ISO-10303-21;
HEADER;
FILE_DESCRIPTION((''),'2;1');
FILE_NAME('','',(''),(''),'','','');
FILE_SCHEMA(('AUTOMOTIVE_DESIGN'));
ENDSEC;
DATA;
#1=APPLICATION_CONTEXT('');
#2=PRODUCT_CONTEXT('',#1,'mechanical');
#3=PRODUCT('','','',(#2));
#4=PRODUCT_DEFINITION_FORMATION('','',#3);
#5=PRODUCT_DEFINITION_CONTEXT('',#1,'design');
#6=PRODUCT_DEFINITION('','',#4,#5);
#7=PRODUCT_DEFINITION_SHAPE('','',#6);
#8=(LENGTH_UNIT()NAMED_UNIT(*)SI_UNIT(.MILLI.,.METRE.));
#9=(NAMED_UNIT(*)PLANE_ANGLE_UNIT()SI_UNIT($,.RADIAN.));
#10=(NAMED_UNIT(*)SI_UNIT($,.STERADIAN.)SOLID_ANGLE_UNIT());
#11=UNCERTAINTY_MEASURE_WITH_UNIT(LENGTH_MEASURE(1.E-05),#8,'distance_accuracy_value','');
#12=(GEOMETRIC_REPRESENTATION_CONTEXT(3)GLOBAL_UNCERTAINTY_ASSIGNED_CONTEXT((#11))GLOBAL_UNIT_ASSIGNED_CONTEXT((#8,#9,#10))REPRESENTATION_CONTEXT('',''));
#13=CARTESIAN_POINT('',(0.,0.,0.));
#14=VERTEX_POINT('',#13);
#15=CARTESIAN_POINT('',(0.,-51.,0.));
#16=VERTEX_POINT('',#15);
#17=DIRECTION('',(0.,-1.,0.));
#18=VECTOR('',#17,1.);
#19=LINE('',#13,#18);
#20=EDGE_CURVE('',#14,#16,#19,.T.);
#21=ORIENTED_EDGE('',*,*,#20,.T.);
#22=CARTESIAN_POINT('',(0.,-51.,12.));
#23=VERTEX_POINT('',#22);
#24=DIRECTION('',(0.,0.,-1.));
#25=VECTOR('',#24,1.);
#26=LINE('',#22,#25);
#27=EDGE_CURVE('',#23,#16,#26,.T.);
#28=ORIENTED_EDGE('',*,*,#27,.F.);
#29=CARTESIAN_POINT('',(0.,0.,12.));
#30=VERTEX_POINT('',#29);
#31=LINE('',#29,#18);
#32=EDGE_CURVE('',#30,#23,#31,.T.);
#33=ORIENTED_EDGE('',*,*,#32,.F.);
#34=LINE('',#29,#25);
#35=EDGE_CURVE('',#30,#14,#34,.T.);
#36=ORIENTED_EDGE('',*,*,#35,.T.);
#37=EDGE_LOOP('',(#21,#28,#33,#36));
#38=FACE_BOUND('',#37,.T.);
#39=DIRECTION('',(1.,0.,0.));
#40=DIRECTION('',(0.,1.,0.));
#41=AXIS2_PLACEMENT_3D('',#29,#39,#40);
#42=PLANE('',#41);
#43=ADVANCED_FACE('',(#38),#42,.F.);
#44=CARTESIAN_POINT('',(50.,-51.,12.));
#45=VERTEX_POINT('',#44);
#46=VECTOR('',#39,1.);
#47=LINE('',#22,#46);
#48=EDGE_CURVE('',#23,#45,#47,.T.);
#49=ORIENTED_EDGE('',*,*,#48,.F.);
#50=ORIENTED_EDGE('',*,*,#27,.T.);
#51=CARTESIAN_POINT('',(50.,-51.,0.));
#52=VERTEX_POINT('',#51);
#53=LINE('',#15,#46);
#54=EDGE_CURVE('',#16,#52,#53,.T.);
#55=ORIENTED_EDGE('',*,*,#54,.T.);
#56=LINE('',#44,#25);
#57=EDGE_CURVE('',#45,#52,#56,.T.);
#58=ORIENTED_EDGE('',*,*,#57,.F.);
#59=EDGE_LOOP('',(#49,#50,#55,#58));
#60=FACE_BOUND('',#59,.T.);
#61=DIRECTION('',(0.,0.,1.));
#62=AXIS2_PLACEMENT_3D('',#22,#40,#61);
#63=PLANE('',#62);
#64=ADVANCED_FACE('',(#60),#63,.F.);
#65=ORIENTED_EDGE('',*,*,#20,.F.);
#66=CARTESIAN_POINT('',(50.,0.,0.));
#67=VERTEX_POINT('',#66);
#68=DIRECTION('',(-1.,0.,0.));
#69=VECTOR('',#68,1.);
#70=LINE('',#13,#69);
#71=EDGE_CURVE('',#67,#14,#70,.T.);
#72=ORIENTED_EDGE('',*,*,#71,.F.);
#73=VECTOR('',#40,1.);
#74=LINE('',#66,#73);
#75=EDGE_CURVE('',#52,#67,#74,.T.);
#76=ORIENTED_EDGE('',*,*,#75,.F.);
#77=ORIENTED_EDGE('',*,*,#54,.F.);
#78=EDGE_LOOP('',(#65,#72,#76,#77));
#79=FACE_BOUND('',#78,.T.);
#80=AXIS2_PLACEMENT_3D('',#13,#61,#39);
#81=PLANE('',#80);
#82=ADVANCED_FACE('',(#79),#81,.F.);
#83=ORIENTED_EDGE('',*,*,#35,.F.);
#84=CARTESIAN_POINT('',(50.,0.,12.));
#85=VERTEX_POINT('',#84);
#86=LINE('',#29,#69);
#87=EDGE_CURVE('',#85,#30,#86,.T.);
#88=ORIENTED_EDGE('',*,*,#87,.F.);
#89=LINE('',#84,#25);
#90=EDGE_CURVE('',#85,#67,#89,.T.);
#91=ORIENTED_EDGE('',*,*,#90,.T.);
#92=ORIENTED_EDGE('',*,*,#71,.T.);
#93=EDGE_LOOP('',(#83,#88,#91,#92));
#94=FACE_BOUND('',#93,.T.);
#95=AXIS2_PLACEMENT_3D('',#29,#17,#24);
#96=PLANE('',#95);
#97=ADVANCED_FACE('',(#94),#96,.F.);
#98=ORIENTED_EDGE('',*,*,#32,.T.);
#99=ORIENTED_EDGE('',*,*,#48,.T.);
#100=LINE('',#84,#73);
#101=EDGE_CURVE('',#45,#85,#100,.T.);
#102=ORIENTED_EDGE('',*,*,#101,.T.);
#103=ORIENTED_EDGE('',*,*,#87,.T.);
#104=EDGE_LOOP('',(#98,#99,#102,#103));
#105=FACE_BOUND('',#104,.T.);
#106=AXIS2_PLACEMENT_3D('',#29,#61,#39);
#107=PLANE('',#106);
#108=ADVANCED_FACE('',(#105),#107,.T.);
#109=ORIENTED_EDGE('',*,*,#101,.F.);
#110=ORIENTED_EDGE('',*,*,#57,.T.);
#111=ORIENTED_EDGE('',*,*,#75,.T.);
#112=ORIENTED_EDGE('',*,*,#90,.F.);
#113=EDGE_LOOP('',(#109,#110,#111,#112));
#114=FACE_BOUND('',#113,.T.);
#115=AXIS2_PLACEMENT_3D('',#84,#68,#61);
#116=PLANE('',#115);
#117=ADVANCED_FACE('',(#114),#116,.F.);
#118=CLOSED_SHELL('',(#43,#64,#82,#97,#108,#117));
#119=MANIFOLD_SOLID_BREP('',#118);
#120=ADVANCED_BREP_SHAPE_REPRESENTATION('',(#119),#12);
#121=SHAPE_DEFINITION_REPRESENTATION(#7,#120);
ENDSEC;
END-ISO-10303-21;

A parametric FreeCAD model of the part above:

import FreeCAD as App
import Part
import Sketcher
Q = App.Units.Quantity

doc = App.newDocument("Part")
body = doc.addObject("PartDesign::Body", "Body")

sketch1 = doc.addObject("Sketcher::SketchObject", "Sketch")
body.addObject(sketch1)
sketch1.AttachmentSupport = (doc.XY_Plane, [""])
sketch1.MapMode = "FlatFace"
sketch1.addGeometry([
    Part.LineSegment(App.Vector(0, 0, 0), App.Vector(0, -51, 0)),
    Part.LineSegment(App.Vector(0, -51, 0), App.Vector(50, -51, 0)),
    Part.LineSegment(App.Vector(50, -51, 0), App.Vector(50, 0, 0)),
    Part.LineSegment(App.Vector(50, 0, 0), App.Vector(0, 0, 0)),
], False)
sketch1.addConstraint([
    Sketcher.Constraint("Coincident", 0, 2, 1, 1),
    Sketcher.Constraint("Coincident", 1, 2, 2, 1),
    Sketcher.Constraint("Coincident", 2, 2, 3, 1),
    Sketcher.Constraint("Coincident", 3, 2, 0, 1),
    Sketcher.Constraint("Vertical", 0),
    Sketcher.Constraint("Horizontal", 1),
    Sketcher.Constraint("Vertical", 2),
    Sketcher.Constraint("Horizontal", 3),
    Sketcher.Constraint("Coincident", 3, 2, -1, 1),
    Sketcher.Constraint("DistanceX", 1, 1, 1, 2, Q("50 mm")),
    Sketcher.Constraint("DistanceY", 0, 2, 0, 1, Q("51 mm")),
])
pad1 = doc.addObject("PartDesign::Pad", "Pad")
body.addObject(pad1)
pad1.Profile = sketch1
pad1.Length = 12

doc.recompute()
